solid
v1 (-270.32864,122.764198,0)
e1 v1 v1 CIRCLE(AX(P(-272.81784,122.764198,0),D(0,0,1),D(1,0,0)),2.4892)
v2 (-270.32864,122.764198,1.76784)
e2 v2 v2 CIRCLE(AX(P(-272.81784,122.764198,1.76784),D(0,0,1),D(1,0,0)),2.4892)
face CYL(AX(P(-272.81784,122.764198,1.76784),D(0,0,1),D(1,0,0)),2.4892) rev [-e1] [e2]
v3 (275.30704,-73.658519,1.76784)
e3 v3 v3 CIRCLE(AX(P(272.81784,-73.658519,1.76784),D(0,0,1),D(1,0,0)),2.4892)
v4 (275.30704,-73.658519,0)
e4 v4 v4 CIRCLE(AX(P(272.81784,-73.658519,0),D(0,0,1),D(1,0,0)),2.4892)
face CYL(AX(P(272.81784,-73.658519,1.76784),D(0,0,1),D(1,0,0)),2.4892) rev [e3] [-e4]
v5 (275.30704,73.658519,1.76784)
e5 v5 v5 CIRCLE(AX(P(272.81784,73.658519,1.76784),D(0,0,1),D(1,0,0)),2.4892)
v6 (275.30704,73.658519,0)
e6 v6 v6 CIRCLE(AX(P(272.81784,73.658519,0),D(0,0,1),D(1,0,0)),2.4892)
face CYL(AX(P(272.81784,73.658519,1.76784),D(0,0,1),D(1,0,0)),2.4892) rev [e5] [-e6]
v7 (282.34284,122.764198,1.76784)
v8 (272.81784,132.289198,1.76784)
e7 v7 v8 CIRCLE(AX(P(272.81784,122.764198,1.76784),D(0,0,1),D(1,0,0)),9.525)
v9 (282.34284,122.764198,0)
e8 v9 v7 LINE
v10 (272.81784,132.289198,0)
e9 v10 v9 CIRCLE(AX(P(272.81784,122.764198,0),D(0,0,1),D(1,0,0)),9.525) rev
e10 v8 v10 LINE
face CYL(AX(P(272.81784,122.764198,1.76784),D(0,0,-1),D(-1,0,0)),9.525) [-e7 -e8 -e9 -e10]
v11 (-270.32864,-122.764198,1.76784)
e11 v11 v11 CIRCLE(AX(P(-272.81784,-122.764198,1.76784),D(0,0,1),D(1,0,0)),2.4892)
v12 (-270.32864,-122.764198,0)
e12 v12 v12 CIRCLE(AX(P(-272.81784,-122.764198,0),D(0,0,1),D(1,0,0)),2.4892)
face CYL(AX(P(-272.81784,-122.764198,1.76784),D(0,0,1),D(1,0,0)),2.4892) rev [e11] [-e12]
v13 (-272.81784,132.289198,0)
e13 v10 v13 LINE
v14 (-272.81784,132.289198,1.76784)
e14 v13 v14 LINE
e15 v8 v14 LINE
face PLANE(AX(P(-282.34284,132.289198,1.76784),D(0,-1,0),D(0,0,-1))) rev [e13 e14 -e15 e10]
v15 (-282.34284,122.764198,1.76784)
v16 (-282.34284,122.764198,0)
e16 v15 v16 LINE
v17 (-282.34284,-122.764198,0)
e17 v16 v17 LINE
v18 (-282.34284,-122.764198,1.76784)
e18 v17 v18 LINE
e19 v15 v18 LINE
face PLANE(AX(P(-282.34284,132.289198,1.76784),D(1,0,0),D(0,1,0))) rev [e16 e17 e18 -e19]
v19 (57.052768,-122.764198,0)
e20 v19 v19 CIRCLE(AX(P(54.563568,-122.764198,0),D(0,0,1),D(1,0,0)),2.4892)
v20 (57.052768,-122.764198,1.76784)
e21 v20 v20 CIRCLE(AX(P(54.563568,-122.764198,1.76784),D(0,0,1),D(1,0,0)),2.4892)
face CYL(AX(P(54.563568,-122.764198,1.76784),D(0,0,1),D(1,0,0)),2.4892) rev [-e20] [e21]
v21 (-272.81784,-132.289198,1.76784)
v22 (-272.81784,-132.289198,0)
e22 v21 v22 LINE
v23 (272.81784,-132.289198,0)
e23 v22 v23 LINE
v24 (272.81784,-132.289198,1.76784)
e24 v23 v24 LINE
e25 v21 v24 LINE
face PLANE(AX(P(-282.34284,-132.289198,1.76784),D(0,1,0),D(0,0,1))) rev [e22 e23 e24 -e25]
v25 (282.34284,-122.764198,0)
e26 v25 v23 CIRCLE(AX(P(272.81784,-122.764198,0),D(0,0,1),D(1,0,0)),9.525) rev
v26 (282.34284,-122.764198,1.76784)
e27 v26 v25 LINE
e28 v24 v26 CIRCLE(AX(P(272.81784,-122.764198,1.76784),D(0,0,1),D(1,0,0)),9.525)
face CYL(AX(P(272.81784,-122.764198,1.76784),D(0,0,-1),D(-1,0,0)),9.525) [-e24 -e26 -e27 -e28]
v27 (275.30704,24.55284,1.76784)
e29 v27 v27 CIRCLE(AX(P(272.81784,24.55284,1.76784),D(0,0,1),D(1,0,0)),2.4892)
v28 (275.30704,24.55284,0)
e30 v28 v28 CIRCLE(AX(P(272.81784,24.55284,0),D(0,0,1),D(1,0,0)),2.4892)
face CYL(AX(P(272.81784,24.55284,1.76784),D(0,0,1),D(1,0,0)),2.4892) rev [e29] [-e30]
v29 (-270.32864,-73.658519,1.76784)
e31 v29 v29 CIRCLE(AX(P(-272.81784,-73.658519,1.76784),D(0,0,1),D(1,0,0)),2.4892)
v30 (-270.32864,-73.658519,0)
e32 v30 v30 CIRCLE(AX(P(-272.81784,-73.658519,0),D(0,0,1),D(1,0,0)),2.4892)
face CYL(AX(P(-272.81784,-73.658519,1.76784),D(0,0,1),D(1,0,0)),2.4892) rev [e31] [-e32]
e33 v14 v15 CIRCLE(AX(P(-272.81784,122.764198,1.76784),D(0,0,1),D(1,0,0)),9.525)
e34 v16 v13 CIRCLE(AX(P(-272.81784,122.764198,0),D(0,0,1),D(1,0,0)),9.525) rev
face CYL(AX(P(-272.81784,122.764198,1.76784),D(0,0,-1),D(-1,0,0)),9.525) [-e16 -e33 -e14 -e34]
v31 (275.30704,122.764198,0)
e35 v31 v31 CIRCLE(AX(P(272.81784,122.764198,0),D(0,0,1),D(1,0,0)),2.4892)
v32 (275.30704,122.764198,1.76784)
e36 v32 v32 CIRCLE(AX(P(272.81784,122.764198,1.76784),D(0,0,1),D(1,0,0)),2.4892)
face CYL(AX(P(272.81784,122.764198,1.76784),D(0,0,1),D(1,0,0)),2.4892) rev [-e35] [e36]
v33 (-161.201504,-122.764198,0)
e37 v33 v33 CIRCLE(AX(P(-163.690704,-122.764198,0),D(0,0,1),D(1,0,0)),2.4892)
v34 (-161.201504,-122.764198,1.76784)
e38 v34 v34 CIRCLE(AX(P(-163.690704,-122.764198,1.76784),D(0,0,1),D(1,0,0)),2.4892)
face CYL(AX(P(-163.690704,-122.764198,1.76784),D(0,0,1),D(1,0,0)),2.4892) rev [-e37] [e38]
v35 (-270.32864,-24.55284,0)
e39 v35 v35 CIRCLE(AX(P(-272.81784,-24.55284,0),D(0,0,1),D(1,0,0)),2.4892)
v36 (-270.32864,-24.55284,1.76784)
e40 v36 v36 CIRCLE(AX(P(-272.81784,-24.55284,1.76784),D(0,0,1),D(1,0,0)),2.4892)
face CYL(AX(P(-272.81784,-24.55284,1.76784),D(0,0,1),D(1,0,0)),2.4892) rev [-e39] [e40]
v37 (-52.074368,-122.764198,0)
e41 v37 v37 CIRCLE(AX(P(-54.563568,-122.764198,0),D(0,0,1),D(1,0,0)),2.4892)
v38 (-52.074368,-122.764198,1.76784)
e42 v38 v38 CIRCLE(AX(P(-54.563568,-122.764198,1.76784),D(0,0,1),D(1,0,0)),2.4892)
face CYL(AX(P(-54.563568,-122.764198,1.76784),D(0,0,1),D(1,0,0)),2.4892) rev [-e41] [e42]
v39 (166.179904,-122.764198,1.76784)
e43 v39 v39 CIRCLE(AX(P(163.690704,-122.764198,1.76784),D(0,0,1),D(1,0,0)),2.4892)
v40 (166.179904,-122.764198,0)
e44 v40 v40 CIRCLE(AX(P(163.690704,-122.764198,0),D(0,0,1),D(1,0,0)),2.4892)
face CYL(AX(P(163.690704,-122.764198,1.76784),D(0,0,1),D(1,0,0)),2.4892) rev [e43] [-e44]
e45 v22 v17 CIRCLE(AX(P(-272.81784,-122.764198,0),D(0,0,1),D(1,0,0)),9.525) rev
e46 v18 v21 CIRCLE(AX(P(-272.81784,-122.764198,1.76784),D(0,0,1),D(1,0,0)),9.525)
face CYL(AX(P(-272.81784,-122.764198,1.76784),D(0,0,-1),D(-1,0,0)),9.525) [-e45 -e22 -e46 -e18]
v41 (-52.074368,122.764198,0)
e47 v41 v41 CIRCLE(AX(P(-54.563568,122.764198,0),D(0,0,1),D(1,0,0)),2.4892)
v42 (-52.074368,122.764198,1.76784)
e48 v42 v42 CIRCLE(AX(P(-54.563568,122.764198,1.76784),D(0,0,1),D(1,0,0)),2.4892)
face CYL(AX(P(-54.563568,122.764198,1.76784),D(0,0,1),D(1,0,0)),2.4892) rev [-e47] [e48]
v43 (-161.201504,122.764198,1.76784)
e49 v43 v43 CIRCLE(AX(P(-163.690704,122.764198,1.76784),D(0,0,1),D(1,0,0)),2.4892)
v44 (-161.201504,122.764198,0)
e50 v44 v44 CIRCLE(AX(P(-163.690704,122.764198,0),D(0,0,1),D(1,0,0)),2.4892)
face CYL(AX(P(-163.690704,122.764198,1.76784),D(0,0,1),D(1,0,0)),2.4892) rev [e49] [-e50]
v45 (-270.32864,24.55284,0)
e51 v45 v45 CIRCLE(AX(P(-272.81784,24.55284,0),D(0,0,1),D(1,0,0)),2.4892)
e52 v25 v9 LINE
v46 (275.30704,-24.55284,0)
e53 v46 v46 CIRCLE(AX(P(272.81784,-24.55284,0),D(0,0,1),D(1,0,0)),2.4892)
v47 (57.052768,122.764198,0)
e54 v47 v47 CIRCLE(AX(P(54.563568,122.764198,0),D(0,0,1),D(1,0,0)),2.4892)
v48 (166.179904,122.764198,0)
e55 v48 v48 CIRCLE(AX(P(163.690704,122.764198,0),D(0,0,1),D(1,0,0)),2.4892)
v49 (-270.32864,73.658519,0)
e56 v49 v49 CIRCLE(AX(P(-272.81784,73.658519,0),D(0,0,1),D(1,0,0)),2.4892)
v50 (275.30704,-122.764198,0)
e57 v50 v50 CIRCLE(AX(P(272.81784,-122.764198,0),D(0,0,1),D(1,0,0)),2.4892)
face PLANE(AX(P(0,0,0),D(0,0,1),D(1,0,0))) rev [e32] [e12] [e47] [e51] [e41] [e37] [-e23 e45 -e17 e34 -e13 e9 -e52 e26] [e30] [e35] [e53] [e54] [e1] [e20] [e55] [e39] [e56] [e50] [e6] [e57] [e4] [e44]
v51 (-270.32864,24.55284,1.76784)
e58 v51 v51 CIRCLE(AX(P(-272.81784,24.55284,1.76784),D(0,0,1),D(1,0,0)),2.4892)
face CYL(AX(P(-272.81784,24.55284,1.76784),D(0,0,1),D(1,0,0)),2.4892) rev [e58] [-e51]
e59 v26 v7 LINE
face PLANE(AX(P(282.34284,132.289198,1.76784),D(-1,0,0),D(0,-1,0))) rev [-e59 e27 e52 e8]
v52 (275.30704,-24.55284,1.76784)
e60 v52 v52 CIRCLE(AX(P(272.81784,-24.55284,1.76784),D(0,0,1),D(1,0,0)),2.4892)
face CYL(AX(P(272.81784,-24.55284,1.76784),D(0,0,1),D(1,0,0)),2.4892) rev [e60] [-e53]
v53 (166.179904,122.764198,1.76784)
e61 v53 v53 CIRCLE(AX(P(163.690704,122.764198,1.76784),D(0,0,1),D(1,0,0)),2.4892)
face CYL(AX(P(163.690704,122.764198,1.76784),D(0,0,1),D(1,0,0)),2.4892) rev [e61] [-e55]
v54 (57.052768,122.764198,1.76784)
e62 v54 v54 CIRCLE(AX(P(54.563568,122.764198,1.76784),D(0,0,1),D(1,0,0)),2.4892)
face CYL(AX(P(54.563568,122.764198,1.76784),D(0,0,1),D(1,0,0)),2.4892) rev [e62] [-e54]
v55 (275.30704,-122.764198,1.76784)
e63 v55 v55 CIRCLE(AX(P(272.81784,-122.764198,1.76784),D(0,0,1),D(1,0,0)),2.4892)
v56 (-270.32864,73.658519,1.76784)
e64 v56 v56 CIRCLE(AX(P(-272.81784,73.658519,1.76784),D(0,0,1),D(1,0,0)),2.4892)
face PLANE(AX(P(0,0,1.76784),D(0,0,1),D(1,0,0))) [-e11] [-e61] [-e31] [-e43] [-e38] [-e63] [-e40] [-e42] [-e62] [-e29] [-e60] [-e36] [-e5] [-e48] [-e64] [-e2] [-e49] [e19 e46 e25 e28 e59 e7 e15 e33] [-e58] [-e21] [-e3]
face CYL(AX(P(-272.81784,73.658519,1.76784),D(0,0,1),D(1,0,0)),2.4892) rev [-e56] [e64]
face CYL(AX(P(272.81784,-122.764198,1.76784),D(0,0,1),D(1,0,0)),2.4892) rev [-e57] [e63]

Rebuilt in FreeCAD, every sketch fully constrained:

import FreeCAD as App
import Part
import Sketcher
from FreeCAD import Vector
Q = App.Units.Quantity


def edges_at(feature, points):
    """Names of the edges that pass closest to the given points."""
    edges = feature.Shape.Edges
    near = lambda p: min(range(len(edges)), key=lambda i: edges[i].distToShape(Part.Vertex(*p))[0])
    return sorted({f"Edge{near(p) + 1}" for p in points})

doc = App.newDocument("Part")
body = doc.addObject("PartDesign::Body", "Body")

sketch1 = body.newObject("Sketcher::SketchObject", "Sketch")
sketch1.AttachmentSupport = (doc.getObject("XY_Plane"), [""])
sketch1.MapMode = "FlatFace"
sketch1.addGeometry([
    Part.LineSegment(Vector(-282, 132, 0), Vector(-282, -132, 0)),
    Part.LineSegment(Vector(-282, -132, 0), Vector(282, -132, 0)),
    Part.LineSegment(Vector(282, -132, 0), Vector(282, 132, 0)),
    Part.LineSegment(Vector(282, 132, 0), Vector(-282, 132, 0)),
], False)
sketch1.addConstraint([
    Sketcher.Constraint("Coincident", 0, 2, 1, 1),
    Sketcher.Constraint("Coincident", 1, 2, 2, 1),
    Sketcher.Constraint("Coincident", 2, 2, 3, 1),
    Sketcher.Constraint("Coincident", 3, 2, 0, 1),
    Sketcher.Constraint("Vertical", 0),
    Sketcher.Constraint("Horizontal", 1),
    Sketcher.Constraint("Vertical", 2),
    Sketcher.Constraint("Horizontal", 3),
    Sketcher.Constraint("Symmetric", 0, 2, 2, 2, -1, 1),
    Sketcher.Constraint("DistanceX", 1, 1, 1, 2, Q("564.685681 mm")),
    Sketcher.Constraint("DistanceY", 0, 2, -1, 1, Q("132.289198 mm")),
])
pad1 = body.newObject("PartDesign::Pad", "Pad")
pad1.Profile = sketch1
pad1.Length = Q("0.0696 in")

sketch2 = body.newObject("Sketcher::SketchObject", "Sketch001")
sketch2.AttachmentSupport = (doc.getObject("XY_Plane"), [""])
sketch2.MapMode = "FlatFace"
sketch2.AttachmentOffset = App.Placement(Vector(0, 0, 0.0696 * 25.4), App.Rotation())
sketch2.addGeometry([
    Part.Circle(Vector(-272.8, -122.8, 0), Vector(0, 0, 1), 2.5),
    Part.Circle(Vector(-272.8, -73.7, 0), Vector(0, 0, 1), 2.5),
    Part.Circle(Vector(-272.8, -24.6, 0), Vector(0, 0, 1), 2.5),
    Part.Circle(Vector(-272.8, 24.6, 0), Vector(0, 0, 1), 2.5),
    Part.Circle(Vector(-272.8, 73.7, 0), Vector(0, 0, 1), 2.5),
    Part.Circle(Vector(-272.8, 122.8, 0), Vector(0, 0, 1), 2.5),
    Part.Circle(Vector(-163.7, 122.8, 0), Vector(0, 0, 1), 2.5),
    Part.Circle(Vector(-54.6, 122.8, 0), Vector(0, 0, 1), 2.5),
    Part.Circle(Vector(-54.6, -122.8, 0), Vector(0, 0, 1), 2.5),
    Part.Circle(Vector(-163.7, -122.8, 0), Vector(0, 0, 1), 2.5),
], False)
sketch2.addConstraint([
    Sketcher.Constraint("Equal", 0, 1),
    Sketcher.Constraint("Equal", 1, 2),
    Sketcher.Constraint("Equal", 2, 3),
    Sketcher.Constraint("Equal", 3, 4),
    Sketcher.Constraint("Equal", 4, 5),
    Sketcher.Constraint("Equal", 5, 6),
    Sketcher.Constraint("Equal", 6, 7),
    Sketcher.Constraint("Equal", 7, 8),
    Sketcher.Constraint("Equal", 8, 9),
    Sketcher.Constraint("Symmetric", 2, 3, 3, 3, -1),
    Sketcher.Constraint("Symmetric", 1, 3, 4, 3, -1),
    Sketcher.Constraint("Symmetric", 0, 3, 5, 3, -1),
    Sketcher.Constraint("Symmetric", 7, 3, 8, 3, -1),
    Sketcher.Constraint("Symmetric", 6, 3, 9, 3, -1),
    Sketcher.Constraint("Horizontal", 5, 3, 6, 3),
    Sketcher.Constraint("Horizontal", 6, 3, 7, 3),
    Sketcher.Constraint("Vertical", 0, 3, 1, 3),
    Sketcher.Constraint("Vertical", 1, 3, 2, 3),
    Sketcher.Constraint("Diameter", 0, Q("0.196 in")),
    Sketcher.Constraint("DistanceY", 0, 3, -1, 1, Q("122.764198 mm")),
    Sketcher.Constraint("DistanceX", 0, 3, -1, 1, Q("272.81784 mm")),
    Sketcher.Constraint("DistanceY", 1, 3, -1, 1, Q("73.658519 mm")),
    Sketcher.Constraint("DistanceY", 2, 3, -1, 1, Q("24.55284 mm")),
    Sketcher.Constraint("DistanceX", 7, 3, -1, 1, Q("54.563568 mm")),
    Sketcher.Constraint("DistanceX", 6, 3, -1, 1, Q("163.690704 mm")),
])
doc.recompute()
hole = body.newObject("PartDesign::Hole", "Hole")
hole.Profile = sketch2
hole.ThreadType = "None"
hole.Diameter = Q("0.196 in")
hole.DepthType = "ThroughAll"
doc.recompute()

mirrored = body.newObject("PartDesign::Mirrored", "Mirrored")
mirrored.Originals = [hole]
mirrored.MirrorPlane = (doc.getObject("YZ_Plane"), [""])
body.Tip = mirrored
doc.recompute()

fillet = body.newObject("PartDesign::Fillet", "Fillet")
fillet.Base = (mirrored, edges_at(mirrored, [
    (282.343, -132.289, 0.884),
    (-282.343, -132.289, 0.884),
    (-282.343, 132.289, 0.884),
    (282.343, 132.289, 0.884),
]))
fillet.Radius = Q("0.375 in")

doc.recompute()
